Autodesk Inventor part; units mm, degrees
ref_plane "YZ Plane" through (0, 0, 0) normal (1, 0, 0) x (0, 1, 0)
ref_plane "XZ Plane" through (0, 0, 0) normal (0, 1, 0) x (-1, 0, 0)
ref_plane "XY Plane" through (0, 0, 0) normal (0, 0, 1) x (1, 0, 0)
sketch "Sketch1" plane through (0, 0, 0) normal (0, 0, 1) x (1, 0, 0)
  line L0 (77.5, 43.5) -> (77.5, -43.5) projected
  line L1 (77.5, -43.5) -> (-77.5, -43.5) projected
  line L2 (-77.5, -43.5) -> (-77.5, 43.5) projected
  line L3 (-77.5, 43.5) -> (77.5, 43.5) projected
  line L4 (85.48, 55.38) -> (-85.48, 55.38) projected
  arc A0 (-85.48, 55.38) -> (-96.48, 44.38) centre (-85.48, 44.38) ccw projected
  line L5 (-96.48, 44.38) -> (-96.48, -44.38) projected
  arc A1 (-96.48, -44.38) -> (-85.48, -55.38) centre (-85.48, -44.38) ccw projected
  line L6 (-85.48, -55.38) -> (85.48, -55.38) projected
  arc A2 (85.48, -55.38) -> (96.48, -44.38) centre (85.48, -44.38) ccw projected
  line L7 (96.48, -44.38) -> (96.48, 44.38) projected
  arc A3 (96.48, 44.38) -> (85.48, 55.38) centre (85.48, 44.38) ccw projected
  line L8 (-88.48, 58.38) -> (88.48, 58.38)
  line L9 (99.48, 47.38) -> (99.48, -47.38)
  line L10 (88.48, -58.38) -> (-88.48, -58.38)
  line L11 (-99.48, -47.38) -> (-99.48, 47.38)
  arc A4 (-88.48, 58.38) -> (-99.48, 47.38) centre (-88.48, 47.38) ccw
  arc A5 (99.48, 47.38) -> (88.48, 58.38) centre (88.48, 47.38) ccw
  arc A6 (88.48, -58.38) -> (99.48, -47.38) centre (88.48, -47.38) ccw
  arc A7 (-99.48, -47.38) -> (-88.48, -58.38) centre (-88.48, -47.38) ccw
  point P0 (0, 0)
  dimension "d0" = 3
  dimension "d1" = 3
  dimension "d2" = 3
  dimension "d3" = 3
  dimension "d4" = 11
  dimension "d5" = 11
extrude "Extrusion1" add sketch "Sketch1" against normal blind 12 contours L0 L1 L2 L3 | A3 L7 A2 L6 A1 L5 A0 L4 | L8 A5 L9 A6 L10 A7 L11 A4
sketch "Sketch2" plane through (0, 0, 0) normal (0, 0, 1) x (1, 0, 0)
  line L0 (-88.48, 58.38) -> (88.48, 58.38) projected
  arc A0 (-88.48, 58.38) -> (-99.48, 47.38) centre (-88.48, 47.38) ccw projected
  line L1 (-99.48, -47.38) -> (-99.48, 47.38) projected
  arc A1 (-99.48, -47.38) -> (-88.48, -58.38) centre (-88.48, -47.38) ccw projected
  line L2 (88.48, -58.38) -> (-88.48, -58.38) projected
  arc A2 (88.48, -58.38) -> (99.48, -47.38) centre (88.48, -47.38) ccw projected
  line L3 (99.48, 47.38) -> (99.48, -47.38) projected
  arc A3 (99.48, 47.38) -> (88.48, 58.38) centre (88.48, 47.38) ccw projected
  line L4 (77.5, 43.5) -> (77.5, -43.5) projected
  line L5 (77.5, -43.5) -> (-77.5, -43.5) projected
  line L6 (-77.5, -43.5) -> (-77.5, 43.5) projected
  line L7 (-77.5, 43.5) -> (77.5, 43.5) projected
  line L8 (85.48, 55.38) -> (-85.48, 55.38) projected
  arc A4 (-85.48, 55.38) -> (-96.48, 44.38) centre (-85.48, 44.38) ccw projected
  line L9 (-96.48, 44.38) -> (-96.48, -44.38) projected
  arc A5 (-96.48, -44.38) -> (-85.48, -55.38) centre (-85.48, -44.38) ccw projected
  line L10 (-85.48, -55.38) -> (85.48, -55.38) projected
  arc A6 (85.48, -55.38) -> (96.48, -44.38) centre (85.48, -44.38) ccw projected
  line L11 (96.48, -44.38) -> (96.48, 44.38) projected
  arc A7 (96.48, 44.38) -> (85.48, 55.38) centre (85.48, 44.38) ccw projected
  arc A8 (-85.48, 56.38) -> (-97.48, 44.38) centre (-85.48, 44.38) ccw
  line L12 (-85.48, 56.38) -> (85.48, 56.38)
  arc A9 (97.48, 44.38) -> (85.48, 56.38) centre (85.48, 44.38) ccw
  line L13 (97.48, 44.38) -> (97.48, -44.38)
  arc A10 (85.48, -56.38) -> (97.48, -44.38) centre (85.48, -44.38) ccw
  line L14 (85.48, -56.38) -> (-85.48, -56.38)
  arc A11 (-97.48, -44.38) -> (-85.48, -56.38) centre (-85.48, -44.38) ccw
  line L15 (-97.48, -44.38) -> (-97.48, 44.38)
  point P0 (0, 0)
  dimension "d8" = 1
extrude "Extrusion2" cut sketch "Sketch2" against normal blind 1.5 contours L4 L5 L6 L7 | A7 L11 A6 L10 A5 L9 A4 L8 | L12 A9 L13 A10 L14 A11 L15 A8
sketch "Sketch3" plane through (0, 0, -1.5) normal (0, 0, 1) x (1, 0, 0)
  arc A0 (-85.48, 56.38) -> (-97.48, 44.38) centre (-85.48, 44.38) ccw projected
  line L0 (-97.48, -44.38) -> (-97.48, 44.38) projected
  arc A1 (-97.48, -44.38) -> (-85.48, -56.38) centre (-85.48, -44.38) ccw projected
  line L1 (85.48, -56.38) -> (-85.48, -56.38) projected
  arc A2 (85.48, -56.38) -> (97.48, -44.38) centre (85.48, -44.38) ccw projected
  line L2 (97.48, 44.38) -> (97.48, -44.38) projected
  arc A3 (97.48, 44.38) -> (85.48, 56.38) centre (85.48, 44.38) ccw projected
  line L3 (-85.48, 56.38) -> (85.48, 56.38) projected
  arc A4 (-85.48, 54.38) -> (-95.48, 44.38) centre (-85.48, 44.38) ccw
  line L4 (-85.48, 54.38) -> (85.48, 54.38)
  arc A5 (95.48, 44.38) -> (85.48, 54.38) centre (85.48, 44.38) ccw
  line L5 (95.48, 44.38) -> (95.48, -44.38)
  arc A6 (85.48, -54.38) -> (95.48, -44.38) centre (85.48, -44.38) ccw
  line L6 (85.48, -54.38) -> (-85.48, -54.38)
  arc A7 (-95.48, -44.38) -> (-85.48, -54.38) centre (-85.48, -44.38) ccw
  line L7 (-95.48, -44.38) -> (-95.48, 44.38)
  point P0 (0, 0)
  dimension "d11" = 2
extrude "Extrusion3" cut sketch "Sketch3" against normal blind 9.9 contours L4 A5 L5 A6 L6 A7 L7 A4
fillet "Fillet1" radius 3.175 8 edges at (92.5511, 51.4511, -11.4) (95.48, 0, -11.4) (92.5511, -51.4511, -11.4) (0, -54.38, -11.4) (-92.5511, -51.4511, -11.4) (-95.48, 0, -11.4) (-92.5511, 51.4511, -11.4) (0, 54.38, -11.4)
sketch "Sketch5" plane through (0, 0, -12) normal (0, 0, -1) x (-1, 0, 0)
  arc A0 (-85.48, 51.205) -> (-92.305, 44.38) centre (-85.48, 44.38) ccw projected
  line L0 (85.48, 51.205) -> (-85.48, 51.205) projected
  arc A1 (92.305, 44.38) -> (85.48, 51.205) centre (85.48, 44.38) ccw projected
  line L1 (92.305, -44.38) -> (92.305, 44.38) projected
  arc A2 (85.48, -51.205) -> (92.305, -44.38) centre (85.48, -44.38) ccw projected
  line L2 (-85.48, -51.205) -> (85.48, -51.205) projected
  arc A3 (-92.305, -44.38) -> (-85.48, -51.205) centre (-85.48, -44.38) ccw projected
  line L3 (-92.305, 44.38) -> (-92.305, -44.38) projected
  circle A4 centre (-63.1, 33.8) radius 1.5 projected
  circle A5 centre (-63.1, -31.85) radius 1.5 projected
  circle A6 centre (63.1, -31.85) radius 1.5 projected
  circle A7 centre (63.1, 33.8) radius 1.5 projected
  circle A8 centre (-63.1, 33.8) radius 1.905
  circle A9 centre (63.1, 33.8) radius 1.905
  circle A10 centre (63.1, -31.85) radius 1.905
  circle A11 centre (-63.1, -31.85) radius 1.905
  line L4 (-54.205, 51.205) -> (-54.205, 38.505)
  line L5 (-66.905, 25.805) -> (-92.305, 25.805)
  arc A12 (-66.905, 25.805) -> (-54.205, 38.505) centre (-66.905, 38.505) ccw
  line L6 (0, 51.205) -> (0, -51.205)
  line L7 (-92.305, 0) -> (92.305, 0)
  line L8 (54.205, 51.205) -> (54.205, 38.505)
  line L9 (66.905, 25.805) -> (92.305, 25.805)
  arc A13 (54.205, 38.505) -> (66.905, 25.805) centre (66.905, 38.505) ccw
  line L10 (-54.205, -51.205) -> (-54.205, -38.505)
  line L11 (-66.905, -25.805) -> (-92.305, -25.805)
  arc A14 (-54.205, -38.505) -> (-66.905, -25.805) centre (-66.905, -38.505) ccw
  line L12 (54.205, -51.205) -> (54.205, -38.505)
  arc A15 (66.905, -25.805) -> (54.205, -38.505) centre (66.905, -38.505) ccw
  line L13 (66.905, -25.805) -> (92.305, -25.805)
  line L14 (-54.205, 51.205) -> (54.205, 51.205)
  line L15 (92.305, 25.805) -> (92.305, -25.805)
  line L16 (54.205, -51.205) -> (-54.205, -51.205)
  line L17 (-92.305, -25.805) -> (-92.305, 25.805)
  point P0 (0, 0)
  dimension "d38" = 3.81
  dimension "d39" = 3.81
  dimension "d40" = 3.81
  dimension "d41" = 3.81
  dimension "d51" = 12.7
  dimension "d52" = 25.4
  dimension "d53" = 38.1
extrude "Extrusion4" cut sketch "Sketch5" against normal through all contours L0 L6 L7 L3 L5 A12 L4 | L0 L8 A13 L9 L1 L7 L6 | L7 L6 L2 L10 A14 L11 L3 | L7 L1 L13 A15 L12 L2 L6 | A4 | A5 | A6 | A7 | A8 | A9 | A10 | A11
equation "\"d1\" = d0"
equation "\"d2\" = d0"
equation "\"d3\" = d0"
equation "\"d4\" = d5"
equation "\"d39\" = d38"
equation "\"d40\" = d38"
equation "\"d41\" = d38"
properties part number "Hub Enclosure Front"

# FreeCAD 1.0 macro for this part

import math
import FreeCAD as App
import Part
import Sketcher
from FreeCAD import Vector


def edges_at(feature, points):
    """Names of the edges that pass closest to the given points."""
    edges = feature.Shape.Edges
    near = lambda p: min(range(len(edges)), key=lambda i: edges[i].distToShape(Part.Vertex(*p))[0])
    return sorted({f"Edge{near(p) + 1}" for p in points})

doc = App.newDocument("Part")
params = doc.addObject("Spreadsheet::Sheet", "Params")
for row, (alias, value) in enumerate([
    ("sketch1_radius", "11 mm"),
    ("sketch1_width", "176.96 mm"),
    ("sketch1_height", "94.76 mm"),
    ("pad1_length", "12 mm"),
    ("sketch2_radius", "12 mm"),
    ("sketch2_width", "170.96 mm"),
    ("sketch2_height", "88.76 mm"),
    ("pocket1_length", "1.5 mm"),
    ("sketch3_radius", "10 mm"),
    ("sketch3_width", "170.96 mm"),
    ("sketch3_height", "88.76 mm"),
    ("pocket2_length", "9.9 mm"),
    ("fillet_radius", "3.175 mm"),
    ("sketch4_radius", "12.7 mm"),
    ("sketch4_diameter", "3.81 mm"),
    ("sketch4_width", "25.4 mm"),
    ("sketch4_height", "12.7 mm"),
    ("sketch4_width2", "108.41 mm"),
], start=1):
    params.set(f"A{row}", alias)
    params.set(f"B{row}", "=" + value)
    params.setAlias(f"B{row}", alias)

body = doc.addObject("PartDesign::Body", "Body")

# Sketch on XY plane
sketch1 = body.newObject("Sketcher::SketchObject", "Sketch")
sketch1.AttachmentSupport = (doc.getObject("XY_Plane"), [""])
sketch1.MapMode = "FlatFace"
sketch1.addGeometry([
    Part.LineSegment(Vector(88.48, 58.38, 0), Vector(-88.48, 58.38, 0)),  # 0
    Part.ArcOfCircle(Part.Circle(Vector(-88.48, 47.38, 0), Vector(0, 0, 1), 11), math.radians(90), math.radians(180)),  # 1
    Part.LineSegment(Vector(-99.48, 47.38, 0), Vector(-99.48, -47.38, 0)),  # 2
    Part.ArcOfCircle(Part.Circle(Vector(-88.48, -47.38, 0), Vector(0, 0, 1), 11), math.radians(180), math.radians(270)),  # 3
    Part.LineSegment(Vector(-88.48, -58.38, 0), Vector(88.48, -58.38, 0)),  # 4
    Part.ArcOfCircle(Part.Circle(Vector(88.48, -47.38, 0), Vector(0, 0, 1), 11), math.radians(-90), math.radians(0)),  # 5
    Part.LineSegment(Vector(99.48, -47.38, 0), Vector(99.48, 47.38, 0)),  # 6
    Part.ArcOfCircle(Part.Circle(Vector(88.48, 47.38, 0), Vector(0, 0, 1), 11), math.radians(0), math.radians(90)),  # 7
], False)
sketch1.addConstraint([
    Sketcher.Constraint("Tangent", 0, 2, 1, 1),
    Sketcher.Constraint("Tangent", 1, 2, 2, 1),
    Sketcher.Constraint("Tangent", 2, 2, 3, 1),
    Sketcher.Constraint("Tangent", 3, 2, 4, 1),
    Sketcher.Constraint("Tangent", 4, 2, 5, 1),
    Sketcher.Constraint("Tangent", 5, 2, 6, 1),
    Sketcher.Constraint("Tangent", 6, 2, 7, 1),
    Sketcher.Constraint("Tangent", 7, 2, 0, 1),
    Sketcher.Constraint("Horizontal", 0),
    Sketcher.Constraint("Vertical", 2),
    Sketcher.Constraint("Horizontal", 4),
    Sketcher.Constraint("Vertical", 6),
    Sketcher.Constraint("Equal", 1, 3),
    Sketcher.Constraint("Equal", 3, 5),
    Sketcher.Constraint("Equal", 5, 7),
    Sketcher.Constraint("Symmetric", 1, 3, 5, 3, -1, 1),
    Sketcher.Constraint("Radius", 1, 11.0),
    Sketcher.Constraint("DistanceX", 0, 2, 0, 1, 176.96),
    Sketcher.Constraint("DistanceY", 2, 2, 2, 1, 94.76),
])
sketch1.setExpression("Constraints[16]", "Params.sketch1_radius")
sketch1.setExpression("Constraints[17]", "Params.sketch1_width")
sketch1.setExpression("Constraints[18]", "Params.sketch1_height")
pad1 = body.newObject("PartDesign::Pad", "Pad")
pad1.Profile = sketch1
pad1.setExpression("Length", "Params.pad1_length")
pad1.Reversed = True

# Sketch on XY plane
sketch2 = body.newObject("Sketcher::SketchObject", "Sketch001")
sketch2.AttachmentSupport = (doc.getObject("XY_Plane"), [""])
sketch2.MapMode = "FlatFace"
sketch2.addGeometry([
    Part.LineSegment(Vector(85.48, 56.38, 0), Vector(-85.48, 56.38, 0)),  # 0
    Part.ArcOfCircle(Part.Circle(Vector(-85.48, 44.38, 0), Vector(0, 0, 1), 12), math.radians(90), math.radians(180)),  # 1
    Part.LineSegment(Vector(-97.48, 44.38, 0), Vector(-97.48, -44.38, 0)),  # 2
    Part.ArcOfCircle(Part.Circle(Vector(-85.48, -44.38, 0), Vector(0, 0, 1), 12), math.radians(180), math.radians(270)),  # 3
    Part.LineSegment(Vector(-85.48, -56.38, 0), Vector(85.48, -56.38, 0)),  # 4
    Part.ArcOfCircle(Part.Circle(Vector(85.48, -44.38, 0), Vector(0, 0, 1), 12), math.radians(-90), math.radians(0)),  # 5
    Part.LineSegment(Vector(97.48, -44.38, 0), Vector(97.48, 44.38, 0)),  # 6
    Part.ArcOfCircle(Part.Circle(Vector(85.48, 44.38, 0), Vector(0, 0, 1), 12), math.radians(0), math.radians(90)),  # 7
], False)
sketch2.addConstraint([
    Sketcher.Constraint("Tangent", 0, 2, 1, 1),
    Sketcher.Constraint("Tangent", 1, 2, 2, 1),
    Sketcher.Constraint("Tangent", 2, 2, 3, 1),
    Sketcher.Constraint("Tangent", 3, 2, 4, 1),
    Sketcher.Constraint("Tangent", 4, 2, 5, 1),
    Sketcher.Constraint("Tangent", 5, 2, 6, 1),
    Sketcher.Constraint("Tangent", 6, 2, 7, 1),
    Sketcher.Constraint("Tangent", 7, 2, 0, 1),
    Sketcher.Constraint("Horizontal", 0),
    Sketcher.Constraint("Vertical", 2),
    Sketcher.Constraint("Horizontal", 4),
    Sketcher.Constraint("Vertical", 6),
    Sketcher.Constraint("Equal", 1, 3),
    Sketcher.Constraint("Equal", 3, 5),
    Sketcher.Constraint("Equal", 5, 7),
    Sketcher.Constraint("Symmetric", 1, 3, 5, 3, -1, 1),
    Sketcher.Constraint("Radius", 1, 12.0),
    Sketcher.Constraint("DistanceX", 0, 2, 0, 1, 170.96),
    Sketcher.Constraint("DistanceY", 2, 2, 2, 1, 88.76),
])
sketch2.setExpression("Constraints[16]", "Params.sketch2_radius")
sketch2.setExpression("Constraints[17]", "Params.sketch2_width")
sketch2.setExpression("Constraints[18]", "Params.sketch2_height")
pocket1 = body.newObject("PartDesign::Pocket", "Pocket")
pocket1.Profile = sketch2
pocket1.setExpression("Length", "Params.pocket1_length")

# Sketch on XY plane
sketch3 = body.newObject("Sketcher::SketchObject", "Sketch002")
sketch3.AttachmentSupport = (doc.getObject("XY_Plane"), [""])
sketch3.MapMode = "FlatFace"
sketch3.AttachmentOffset = App.Placement(Vector(0, 0, -1.5), App.Rotation())
sketch3.addGeometry([
    Part.LineSegment(Vector(85.48, 54.38, 0), Vector(-85.48, 54.38, 0)),  # 0
    Part.ArcOfCircle(Part.Circle(Vector(-85.48, 44.38, 0), Vector(0, 0, 1), 10), math.radians(90), math.radians(180)),  # 1
    Part.LineSegment(Vector(-95.48, 44.38, 0), Vector(-95.48, -44.38, 0)),  # 2
    Part.ArcOfCircle(Part.Circle(Vector(-85.48, -44.38, 0), Vector(0, 0, 1), 10), math.radians(180), math.radians(270)),  # 3
    Part.LineSegment(Vector(-85.48, -54.38, 0), Vector(85.48, -54.38, 0)),  # 4
    Part.ArcOfCircle(Part.Circle(Vector(85.48, -44.38, 0), Vector(0, 0, 1), 10), math.radians(-90), math.radians(0)),  # 5
    Part.LineSegment(Vector(95.48, -44.38, 0), Vector(95.48, 44.38, 0)),  # 6
    Part.ArcOfCircle(Part.Circle(Vector(85.48, 44.38, 0), Vector(0, 0, 1), 10), math.radians(0), math.radians(90)),  # 7
], False)
sketch3.addConstraint([
    Sketcher.Constraint("Tangent", 0, 2, 1, 1),
    Sketcher.Constraint("Tangent", 1, 2, 2, 1),
    Sketcher.Constraint("Tangent", 2, 2, 3, 1),
    Sketcher.Constraint("Tangent", 3, 2, 4, 1),
    Sketcher.Constraint("Tangent", 4, 2, 5, 1),
    Sketcher.Constraint("Tangent", 5, 2, 6, 1),
    Sketcher.Constraint("Tangent", 6, 2, 7, 1),
    Sketcher.Constraint("Tangent", 7, 2, 0, 1),
    Sketcher.Constraint("Horizontal", 0),
    Sketcher.Constraint("Vertical", 2),
    Sketcher.Constraint("Horizontal", 4),
    Sketcher.Constraint("Vertical", 6),
    Sketcher.Constraint("Equal", 1, 3),
    Sketcher.Constraint("Equal", 3, 5),
    Sketcher.Constraint("Equal", 5, 7),
    Sketcher.Constraint("Symmetric", 1, 3, 5, 3, -1, 1),
    Sketcher.Constraint("Radius", 1, 10.0),
    Sketcher.Constraint("DistanceX", 0, 2, 0, 1, 170.96),
    Sketcher.Constraint("DistanceY", 2, 2, 2, 1, 88.76),
])
sketch3.setExpression("Constraints[16]", "Params.sketch3_radius")
sketch3.setExpression("Constraints[17]", "Params.sketch3_width")
sketch3.setExpression("Constraints[18]", "Params.sketch3_height")
pocket2 = body.newObject("PartDesign::Pocket", "Pocket001")
pocket2.Profile = sketch3
pocket2.setExpression("Length", "Params.pocket2_length")
doc.recompute()

fillet = body.newObject("PartDesign::Fillet", "Fillet")
fillet.Base = (pocket2, edges_at(pocket2, [
    (92.551, 51.451, -11.4),
    (95.48, 0, -11.4),
    (92.551, -51.451, -11.4),
    (0, -54.38, -11.4),
    (-92.551, -51.451, -11.4),
    (-95.48, 0, -11.4),
    (-92.551, 51.451, -11.4),
    (0, 54.38, -11.4),
]))
fillet.setExpression("Radius", "Params.fillet_radius")

# Sketch on XY plane
sketch4 = body.newObject("Sketcher::SketchObject", "Sketch003")
sketch4.AttachmentSupport = (doc.getObject("XY_Plane"), [""])
sketch4.MapMode = "FlatFace"
sketch4.AttachmentOffset = App.Placement(Vector(0, 0, -12), App.Rotation())
sketch4.addGeometry([
    Part.LineSegment(Vector(54.205, 51.205, 0), Vector(54.205, 38.505, 0)),  # 0
    Part.ArcOfCircle(Part.Circle(Vector(66.905, 38.505, 0), Vector(0, 0, 1), 12.7), math.radians(180), math.radians(270)),  # 1
    Part.LineSegment(Vector(66.905, 25.805, 0), Vector(92.305, 25.805, 0)),  # 2
    Part.LineSegment(Vector(92.305, 25.805, 0), Vector(92.305, -25.805, 0)),  # 3
    Part.LineSegment(Vector(92.305, -25.805, 0), Vector(66.905, -25.805, 0)),  # 4
    Part.ArcOfCircle(Part.Circle(Vector(66.905, -38.505, 0), Vector(0, 0, 1), 12.7), math.radians(90), math.radians(180)),  # 5
    Part.LineSegment(Vector(54.205, -38.505, 0), Vector(54.205, -51.205, 0)),  # 6
    Part.LineSegment(Vector(54.205, -51.205, 0), Vector(-54.205, -51.205, 0)),  # 7
    Part.LineSegment(Vector(-54.205, -51.205, 0), Vector(-54.205, -38.505, 0)),  # 8
    Part.ArcOfCircle(Part.Circle(Vector(-66.905, -38.505, 0), Vector(0, 0, 1), 12.7), math.radians(0), math.radians(90)),  # 9
    Part.LineSegment(Vector(-66.905, -25.805, 0), Vector(-92.305, -25.805, 0)),  # 10
    Part.LineSegment(Vector(-92.305, -25.805, 0), Vector(-92.305, 25.805, 0)),  # 11
    Part.LineSegment(Vector(-92.305, 25.805, 0), Vector(-66.905, 25.805, 0)),  # 12
    Part.ArcOfCircle(Part.Circle(Vector(-66.905, 38.505, 0), Vector(0, 0, 1), 12.7), math.radians(-90), math.radians(0)),  # 13
    Part.LineSegment(Vector(-54.205, 38.505, 0), Vector(-54.205, 51.205, 0)),  # 14
    Part.LineSegment(Vector(-54.205, 51.205, 0), Vector(54.205, 51.205, 0)),  # 15
    Part.Circle(Vector(63.1, 33.8, 0), Vector(0, 0, 1), 1.905),  # 16
    Part.Circle(Vector(63.1, -31.85, 0), Vector(0, 0, 1), 1.905),  # 17
    Part.Circle(Vector(-63.1, -31.85, 0), Vector(0, 0, 1), 1.905),  # 18
    Part.Circle(Vector(-63.1, 33.8, 0), Vector(0, 0, 1), 1.905),  # 19
], False)
sketch4.addConstraint([
    Sketcher.Constraint("Tangent", 0, 2, 1, 1),
    Sketcher.Constraint("Tangent", 1, 2, 2, 1),
    Sketcher.Constraint("Coincident", 2, 2, 3, 1),
    Sketcher.Constraint("Coincident", 3, 2, 4, 1),
    Sketcher.Constraint("Tangent", 4, 2, 5, 1),
    Sketcher.Constraint("Tangent", 5, 2, 6, 1),
    Sketcher.Constraint("Coincident", 6, 2, 7, 1),
    Sketcher.Constraint("Coincident", 7, 2, 8, 1),
    Sketcher.Constraint("Tangent", 8, 2, 9, 1),
    Sketcher.Constraint("Tangent", 9, 2, 10, 1),
    Sketcher.Constraint("Coincident", 10, 2, 11, 1),
    Sketcher.Constraint("Coincident", 11, 2, 12, 1),
    Sketcher.Constraint("Tangent", 12, 2, 13, 1),
    Sketcher.Constraint("Tangent", 13, 2, 14, 1),
    Sketcher.Constraint("Coincident", 14, 2, 15, 1),
    Sketcher.Constraint("Coincident", 15, 2, 0, 1),
    Sketcher.Constraint("Vertical", 0),
    Sketcher.Constraint("Horizontal", 2),
    Sketcher.Constraint("Vertical", 3),
    Sketcher.Constraint("Horizontal", 4),
    Sketcher.Constraint("Vertical", 6),
    Sketcher.Constraint("Horizontal", 7),
    Sketcher.Constraint("Vertical", 8),
    Sketcher.Constraint("Horizontal", 10),
    Sketcher.Constraint("Vertical", 11),
    Sketcher.Constraint("Horizontal", 12),
    Sketcher.Constraint("Vertical", 14),
    Sketcher.Constraint("Horizontal", 15),
    Sketcher.Constraint("Equal", 1, 5),
    Sketcher.Constraint("Equal", 5, 9),
    Sketcher.Constraint("Equal", 9, 13),
    Sketcher.Constraint("Equal", 16, 17),
    Sketcher.Constraint("Equal", 17, 18),
    Sketcher.Constraint("Equal", 18, 19),
    Sketcher.Constraint("Symmetric", 1, 3, 9, 3, -1, 1),
    Sketcher.Constraint("Symmetric", 5, 3, 13, 3, -1, 1),
    Sketcher.Constraint("Symmetric", 5, 3, 9, 3, -2),
    Sketcher.Constraint("Symmetric", 17, 3, 18, 3, -2),
    Sketcher.Constraint("Symmetric", 16, 3, 19, 3, -2),
    Sketcher.Constraint("Vertical", 16, 3, 17, 3),
    Sketcher.Constraint("Equal", 4, 10),
    Sketcher.Constraint("Equal", 0, 6),
    Sketcher.Constraint("Radius", 1, 12.7),
    Sketcher.Constraint("Diameter", 16, 3.81),
    Sketcher.Constraint("DistanceX", 2, 1, 2, 2, 25.4),
    Sketcher.Constraint("DistanceY", 0, 2, 0, 1, 12.7),
    Sketcher.Constraint("DistanceX", 7, 2, 7, 1, 108.41),
    Sketcher.Constraint("DistanceY", 3, 2, 3, 1, 51.61),
    Sketcher.Constraint("DistanceX", -1, 1, 16, 3, 63.1),
    Sketcher.Constraint("DistanceY", -1, 1, 16, 3, 33.8),
    Sketcher.Constraint("DistanceY", 17, 3, -1, 1, 31.85),
])
sketch4.setExpression("Constraints[42]", "Params.sketch4_radius")
sketch4.setExpression("Constraints[43]", "Params.sketch4_diameter")
sketch4.setExpression("Constraints[44]", "Params.sketch4_width")
sketch4.setExpression("Constraints[45]", "Params.sketch4_height")
sketch4.setExpression("Constraints[46]", "Params.sketch4_width2")
pocket3 = body.newObject("PartDesign::Pocket", "Pocket002")
pocket3.Profile = sketch4
pocket3.Type = "ThroughAll"
pocket3.Reversed = True

doc.recompute()
